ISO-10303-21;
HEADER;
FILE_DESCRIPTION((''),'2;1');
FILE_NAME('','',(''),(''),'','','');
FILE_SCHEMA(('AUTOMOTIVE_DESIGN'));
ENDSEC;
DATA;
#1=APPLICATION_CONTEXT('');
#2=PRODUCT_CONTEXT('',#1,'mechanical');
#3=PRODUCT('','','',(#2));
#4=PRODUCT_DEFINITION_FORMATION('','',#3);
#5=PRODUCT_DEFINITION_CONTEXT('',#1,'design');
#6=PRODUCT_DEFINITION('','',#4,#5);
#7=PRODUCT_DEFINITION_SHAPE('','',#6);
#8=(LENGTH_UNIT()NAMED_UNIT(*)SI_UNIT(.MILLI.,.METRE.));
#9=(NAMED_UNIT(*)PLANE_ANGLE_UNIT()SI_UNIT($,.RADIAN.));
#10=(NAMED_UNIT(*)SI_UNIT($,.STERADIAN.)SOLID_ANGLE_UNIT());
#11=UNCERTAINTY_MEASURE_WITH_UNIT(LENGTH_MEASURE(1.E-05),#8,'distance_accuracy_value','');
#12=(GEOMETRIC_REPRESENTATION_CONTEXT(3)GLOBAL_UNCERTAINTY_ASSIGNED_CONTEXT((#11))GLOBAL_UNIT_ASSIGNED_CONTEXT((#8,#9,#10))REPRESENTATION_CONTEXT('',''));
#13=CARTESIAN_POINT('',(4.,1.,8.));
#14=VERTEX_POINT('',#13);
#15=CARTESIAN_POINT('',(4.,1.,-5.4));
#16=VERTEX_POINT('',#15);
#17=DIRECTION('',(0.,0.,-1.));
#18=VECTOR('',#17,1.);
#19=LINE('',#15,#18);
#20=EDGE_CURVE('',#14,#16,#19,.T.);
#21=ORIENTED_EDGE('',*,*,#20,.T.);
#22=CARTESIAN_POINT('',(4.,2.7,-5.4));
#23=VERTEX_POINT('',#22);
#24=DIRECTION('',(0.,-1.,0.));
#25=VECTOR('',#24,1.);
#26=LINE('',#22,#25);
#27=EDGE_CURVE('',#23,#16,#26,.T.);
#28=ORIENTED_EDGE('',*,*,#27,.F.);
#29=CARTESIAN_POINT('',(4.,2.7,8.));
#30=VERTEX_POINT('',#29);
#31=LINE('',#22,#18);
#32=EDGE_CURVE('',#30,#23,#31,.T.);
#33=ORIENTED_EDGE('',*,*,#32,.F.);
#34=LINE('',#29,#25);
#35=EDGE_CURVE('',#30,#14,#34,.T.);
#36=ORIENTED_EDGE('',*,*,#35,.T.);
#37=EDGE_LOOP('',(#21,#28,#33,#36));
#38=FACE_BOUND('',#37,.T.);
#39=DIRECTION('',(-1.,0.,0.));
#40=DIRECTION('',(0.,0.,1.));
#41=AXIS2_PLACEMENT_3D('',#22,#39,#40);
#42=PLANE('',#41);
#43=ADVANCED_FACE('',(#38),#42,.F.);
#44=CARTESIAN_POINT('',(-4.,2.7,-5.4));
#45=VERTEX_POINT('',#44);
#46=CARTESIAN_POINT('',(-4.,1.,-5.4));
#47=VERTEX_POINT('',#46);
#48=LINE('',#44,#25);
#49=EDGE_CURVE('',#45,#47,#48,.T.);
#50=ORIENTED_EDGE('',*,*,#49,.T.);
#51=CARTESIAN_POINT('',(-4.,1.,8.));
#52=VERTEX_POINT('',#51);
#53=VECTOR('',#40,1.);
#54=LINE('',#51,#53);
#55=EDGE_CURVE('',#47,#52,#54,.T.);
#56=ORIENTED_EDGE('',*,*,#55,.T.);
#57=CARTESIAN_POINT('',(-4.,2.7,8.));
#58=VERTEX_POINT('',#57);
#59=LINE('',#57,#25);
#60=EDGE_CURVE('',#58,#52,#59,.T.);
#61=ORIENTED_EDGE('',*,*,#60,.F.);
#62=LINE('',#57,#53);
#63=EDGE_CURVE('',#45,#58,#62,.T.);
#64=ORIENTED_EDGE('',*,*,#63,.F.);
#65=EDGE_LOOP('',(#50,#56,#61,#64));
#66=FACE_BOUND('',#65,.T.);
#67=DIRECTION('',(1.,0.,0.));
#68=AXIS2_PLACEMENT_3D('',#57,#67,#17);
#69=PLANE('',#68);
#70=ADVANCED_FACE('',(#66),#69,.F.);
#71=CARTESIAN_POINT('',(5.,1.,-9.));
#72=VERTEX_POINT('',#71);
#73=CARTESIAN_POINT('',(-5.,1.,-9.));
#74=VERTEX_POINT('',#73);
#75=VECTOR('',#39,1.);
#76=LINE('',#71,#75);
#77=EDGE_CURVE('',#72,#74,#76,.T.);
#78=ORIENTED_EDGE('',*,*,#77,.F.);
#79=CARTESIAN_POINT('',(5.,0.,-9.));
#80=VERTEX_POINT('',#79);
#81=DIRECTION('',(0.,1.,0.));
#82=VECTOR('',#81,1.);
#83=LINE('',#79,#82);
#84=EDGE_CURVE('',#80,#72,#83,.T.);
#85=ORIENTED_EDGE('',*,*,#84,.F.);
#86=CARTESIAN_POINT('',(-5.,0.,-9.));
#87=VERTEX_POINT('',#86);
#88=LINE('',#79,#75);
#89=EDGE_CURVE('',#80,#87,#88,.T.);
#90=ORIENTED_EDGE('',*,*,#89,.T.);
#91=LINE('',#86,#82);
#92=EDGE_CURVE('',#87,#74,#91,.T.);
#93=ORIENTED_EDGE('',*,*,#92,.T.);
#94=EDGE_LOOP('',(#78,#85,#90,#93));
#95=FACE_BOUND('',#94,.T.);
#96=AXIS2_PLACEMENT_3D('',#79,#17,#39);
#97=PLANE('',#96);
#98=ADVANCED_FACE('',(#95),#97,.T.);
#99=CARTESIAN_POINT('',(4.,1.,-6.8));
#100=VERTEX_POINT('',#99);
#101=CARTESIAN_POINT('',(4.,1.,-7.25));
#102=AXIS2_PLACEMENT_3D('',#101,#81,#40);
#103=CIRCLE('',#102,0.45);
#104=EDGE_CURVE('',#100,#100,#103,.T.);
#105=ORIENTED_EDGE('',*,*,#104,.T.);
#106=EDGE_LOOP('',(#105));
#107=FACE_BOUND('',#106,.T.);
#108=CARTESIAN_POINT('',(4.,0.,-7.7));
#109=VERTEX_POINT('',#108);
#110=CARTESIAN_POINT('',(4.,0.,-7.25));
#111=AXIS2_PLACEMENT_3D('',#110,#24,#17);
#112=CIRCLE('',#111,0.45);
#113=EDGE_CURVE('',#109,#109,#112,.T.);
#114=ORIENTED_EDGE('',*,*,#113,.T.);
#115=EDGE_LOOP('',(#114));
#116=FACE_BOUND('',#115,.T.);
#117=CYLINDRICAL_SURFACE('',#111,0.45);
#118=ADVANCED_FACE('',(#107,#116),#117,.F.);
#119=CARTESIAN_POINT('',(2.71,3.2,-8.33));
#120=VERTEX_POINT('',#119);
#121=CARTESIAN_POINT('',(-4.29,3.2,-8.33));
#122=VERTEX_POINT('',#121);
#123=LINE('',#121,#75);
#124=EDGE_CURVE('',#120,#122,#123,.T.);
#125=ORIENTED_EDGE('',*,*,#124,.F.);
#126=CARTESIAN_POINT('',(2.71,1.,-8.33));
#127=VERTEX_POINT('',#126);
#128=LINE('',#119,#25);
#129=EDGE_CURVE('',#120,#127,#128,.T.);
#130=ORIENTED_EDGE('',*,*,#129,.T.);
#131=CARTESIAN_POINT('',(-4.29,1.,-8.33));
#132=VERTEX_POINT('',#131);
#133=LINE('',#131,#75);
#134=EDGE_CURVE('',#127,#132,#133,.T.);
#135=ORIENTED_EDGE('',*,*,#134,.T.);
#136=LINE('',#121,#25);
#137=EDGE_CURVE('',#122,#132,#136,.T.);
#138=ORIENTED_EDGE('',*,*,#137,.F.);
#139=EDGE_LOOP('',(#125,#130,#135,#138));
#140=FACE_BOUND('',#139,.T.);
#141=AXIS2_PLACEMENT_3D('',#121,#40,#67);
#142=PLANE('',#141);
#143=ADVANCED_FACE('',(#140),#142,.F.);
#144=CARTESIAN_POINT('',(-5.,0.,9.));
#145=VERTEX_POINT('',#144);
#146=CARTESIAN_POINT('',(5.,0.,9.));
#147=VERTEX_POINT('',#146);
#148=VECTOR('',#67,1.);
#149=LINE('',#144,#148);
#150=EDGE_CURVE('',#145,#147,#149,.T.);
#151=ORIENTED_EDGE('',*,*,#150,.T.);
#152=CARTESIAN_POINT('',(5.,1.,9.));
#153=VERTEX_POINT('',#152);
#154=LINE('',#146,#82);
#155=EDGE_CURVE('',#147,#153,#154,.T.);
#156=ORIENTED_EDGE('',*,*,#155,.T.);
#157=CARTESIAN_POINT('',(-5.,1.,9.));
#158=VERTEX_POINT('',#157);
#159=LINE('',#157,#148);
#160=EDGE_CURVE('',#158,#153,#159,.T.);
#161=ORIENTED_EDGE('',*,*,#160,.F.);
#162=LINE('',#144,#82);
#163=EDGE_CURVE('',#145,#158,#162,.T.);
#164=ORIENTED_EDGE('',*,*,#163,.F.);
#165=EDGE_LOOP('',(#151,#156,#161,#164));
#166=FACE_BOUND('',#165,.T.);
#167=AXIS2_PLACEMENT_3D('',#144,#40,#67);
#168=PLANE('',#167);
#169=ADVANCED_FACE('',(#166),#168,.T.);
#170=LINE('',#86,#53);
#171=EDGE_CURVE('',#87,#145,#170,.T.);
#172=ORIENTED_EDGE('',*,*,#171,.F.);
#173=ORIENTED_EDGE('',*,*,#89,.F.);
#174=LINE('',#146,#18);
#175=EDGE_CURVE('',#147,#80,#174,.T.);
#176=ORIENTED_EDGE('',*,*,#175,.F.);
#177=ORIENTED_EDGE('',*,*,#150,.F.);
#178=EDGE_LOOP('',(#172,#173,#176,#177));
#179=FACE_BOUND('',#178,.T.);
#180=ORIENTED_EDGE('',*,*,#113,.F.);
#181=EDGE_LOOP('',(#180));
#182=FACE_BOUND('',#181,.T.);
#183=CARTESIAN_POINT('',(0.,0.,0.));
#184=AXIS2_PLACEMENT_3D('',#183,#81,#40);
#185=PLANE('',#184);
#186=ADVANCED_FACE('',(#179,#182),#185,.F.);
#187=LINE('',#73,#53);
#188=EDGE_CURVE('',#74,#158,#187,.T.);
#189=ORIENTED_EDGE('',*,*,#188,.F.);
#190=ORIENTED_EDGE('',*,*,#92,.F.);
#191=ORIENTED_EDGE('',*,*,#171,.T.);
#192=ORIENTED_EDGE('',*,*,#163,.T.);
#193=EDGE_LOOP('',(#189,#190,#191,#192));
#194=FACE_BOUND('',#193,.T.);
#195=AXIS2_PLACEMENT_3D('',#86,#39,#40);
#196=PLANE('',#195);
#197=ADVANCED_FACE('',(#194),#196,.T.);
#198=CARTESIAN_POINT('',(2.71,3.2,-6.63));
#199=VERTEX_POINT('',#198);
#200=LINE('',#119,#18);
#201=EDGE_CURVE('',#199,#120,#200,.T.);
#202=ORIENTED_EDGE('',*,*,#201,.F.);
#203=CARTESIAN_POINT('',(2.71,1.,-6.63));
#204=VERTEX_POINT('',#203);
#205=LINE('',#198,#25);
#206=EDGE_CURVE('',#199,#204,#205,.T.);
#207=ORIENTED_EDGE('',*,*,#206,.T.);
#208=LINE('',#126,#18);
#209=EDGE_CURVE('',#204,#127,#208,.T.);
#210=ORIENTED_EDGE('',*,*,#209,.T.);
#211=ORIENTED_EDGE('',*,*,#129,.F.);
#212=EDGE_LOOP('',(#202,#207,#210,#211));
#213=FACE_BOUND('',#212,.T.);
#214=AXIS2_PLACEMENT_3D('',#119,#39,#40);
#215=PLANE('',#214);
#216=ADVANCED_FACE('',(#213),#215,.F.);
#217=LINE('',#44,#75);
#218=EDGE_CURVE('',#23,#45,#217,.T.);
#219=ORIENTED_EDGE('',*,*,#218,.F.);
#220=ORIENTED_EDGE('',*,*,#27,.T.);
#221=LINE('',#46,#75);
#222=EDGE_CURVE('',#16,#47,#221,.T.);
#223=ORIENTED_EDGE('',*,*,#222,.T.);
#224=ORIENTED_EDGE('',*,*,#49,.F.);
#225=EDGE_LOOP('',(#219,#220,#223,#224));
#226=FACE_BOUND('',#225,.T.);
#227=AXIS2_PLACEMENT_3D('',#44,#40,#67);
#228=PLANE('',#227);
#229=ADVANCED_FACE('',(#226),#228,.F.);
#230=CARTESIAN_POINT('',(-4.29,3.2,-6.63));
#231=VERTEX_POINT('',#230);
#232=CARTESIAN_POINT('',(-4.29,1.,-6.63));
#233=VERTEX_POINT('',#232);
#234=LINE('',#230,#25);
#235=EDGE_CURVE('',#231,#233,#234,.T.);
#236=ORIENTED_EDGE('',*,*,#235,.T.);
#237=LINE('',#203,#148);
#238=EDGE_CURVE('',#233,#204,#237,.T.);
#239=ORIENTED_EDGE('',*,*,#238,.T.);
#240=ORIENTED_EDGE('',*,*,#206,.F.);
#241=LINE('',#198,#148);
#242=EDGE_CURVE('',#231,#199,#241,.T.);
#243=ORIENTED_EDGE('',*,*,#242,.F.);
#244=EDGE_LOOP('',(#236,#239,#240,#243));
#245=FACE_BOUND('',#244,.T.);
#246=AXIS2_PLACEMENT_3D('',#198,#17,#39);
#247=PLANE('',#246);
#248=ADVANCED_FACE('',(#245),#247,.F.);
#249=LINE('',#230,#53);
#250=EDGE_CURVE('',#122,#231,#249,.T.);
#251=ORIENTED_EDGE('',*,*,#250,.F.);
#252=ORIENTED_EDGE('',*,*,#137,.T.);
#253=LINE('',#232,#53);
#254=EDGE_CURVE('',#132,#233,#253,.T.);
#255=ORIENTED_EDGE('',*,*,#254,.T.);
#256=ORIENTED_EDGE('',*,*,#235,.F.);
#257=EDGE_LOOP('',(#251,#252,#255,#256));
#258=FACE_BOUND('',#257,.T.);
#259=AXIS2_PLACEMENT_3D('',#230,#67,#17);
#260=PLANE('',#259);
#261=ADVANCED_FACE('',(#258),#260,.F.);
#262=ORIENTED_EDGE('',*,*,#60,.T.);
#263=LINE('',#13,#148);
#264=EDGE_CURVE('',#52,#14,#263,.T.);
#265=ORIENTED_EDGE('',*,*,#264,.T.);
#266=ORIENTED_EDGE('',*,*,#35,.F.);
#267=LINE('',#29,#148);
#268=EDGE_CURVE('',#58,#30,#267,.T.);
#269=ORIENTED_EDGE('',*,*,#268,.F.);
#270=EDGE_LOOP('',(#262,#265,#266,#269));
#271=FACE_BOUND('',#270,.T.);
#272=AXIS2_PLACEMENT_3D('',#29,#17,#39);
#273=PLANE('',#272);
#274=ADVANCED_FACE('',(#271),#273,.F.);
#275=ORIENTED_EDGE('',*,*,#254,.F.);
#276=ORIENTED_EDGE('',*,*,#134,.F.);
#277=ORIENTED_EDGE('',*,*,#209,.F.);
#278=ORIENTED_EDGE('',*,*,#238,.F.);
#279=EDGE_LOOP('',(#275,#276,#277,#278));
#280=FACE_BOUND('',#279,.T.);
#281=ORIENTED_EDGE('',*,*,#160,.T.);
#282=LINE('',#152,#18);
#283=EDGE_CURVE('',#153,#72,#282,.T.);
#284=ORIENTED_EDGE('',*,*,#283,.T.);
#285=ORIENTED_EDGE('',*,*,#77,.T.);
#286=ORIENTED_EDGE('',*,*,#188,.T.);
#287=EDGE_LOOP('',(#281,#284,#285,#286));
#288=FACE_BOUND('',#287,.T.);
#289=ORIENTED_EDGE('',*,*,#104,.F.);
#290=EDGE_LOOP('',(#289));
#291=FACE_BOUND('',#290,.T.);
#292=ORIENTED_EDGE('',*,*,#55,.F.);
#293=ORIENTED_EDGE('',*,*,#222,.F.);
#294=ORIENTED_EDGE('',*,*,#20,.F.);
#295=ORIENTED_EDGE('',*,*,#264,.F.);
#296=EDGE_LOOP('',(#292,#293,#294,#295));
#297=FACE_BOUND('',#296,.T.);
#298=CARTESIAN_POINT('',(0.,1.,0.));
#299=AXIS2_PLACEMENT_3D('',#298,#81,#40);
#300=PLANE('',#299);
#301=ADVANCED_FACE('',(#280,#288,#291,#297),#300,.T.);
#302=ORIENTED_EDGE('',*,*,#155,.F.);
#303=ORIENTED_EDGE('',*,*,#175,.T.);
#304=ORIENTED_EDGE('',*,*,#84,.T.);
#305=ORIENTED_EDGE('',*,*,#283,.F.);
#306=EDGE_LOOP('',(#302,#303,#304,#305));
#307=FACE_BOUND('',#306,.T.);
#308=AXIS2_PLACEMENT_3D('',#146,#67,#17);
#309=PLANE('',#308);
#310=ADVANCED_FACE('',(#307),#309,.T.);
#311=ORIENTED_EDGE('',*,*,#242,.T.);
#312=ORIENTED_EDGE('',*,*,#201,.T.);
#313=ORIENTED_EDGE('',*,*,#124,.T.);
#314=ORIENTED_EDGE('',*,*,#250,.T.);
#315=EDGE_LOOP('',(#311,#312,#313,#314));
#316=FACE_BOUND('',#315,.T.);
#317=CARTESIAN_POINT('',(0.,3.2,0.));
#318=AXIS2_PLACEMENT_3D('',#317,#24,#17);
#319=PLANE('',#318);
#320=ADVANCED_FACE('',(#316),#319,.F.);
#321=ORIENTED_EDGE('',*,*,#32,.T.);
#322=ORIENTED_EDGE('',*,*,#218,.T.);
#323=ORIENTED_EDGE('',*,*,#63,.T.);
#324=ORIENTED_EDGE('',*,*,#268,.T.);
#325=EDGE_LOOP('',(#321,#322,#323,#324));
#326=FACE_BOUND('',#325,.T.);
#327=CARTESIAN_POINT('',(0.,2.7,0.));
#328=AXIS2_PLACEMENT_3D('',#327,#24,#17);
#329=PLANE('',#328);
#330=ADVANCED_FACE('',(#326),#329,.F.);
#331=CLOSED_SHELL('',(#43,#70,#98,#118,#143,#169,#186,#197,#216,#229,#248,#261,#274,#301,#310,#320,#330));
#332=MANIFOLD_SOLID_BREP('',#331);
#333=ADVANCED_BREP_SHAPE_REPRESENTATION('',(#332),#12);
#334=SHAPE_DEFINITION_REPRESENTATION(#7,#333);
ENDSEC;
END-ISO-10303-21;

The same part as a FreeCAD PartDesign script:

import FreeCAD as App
import Part
import Sketcher
from FreeCAD import Vector


def add_polygon(sketch, points):
    """Adds a closed chain of lines whose ends are joined by coincident constraints."""
    first, n = sketch.GeometryCount, len(points)
    for a, b in zip(points, points[1:] + points[:1]):
        sketch.addGeometry(Part.LineSegment(App.Vector(*a, 0), App.Vector(*b, 0)), False)
    for i in range(n):
        sketch.addConstraint(Sketcher.Constraint("Coincident", first + i, 2, first + (i + 1) % n, 1))

doc = App.newDocument("Part")
body = doc.addObject("PartDesign::Body", "Body")

# Sketch on XZ plane
sketch1 = doc.addObject("Sketcher::SketchObject", "Sketch")
body.addObject(sketch1)
sketch1.AttachmentSupport = (doc.XZ_Plane, [""])
sketch1.MapMode = "FlatFace"
sketch1.AttachmentOffset = App.Placement(Vector(0, 0, -1), App.Rotation())
add_polygon(sketch1, [(-5, -9), (-5, 9), (5, 9), (5, -9)])  # lines 0-3
sketch1.addConstraint([
    Sketcher.Constraint("Vertical", 0),
    Sketcher.Constraint("Horizontal", 1),
    Sketcher.Constraint("Vertical", 2),
    Sketcher.Constraint("Horizontal", 3),
    Sketcher.Constraint("Symmetric", 0, 2, 2, 2, -1, 1),
    Sketcher.Constraint("DistanceX", 1, 1, 1, 2, 10.0),
    Sketcher.Constraint("DistanceY", 0, 1, 0, 2, 18.0),
])
pad1 = doc.addObject("PartDesign::Pad", "Pad")
body.addObject(pad1)
pad1.Profile = sketch1
pad1.Length = 1

# Sketch on XZ plane
sketch2 = doc.addObject("Sketcher::SketchObject", "Sketch001")
body.addObject(sketch2)
sketch2.AttachmentSupport = (doc.XZ_Plane, [""])
sketch2.MapMode = "FlatFace"
sketch2.AttachmentOffset = App.Placement(Vector(0, 0, -1), App.Rotation())
add_polygon(sketch2, [(4, 8), (4, -5.4), (-4, -5.4), (-4, 8)])  # lines 0-3
sketch2.addConstraint([
    Sketcher.Constraint("Vertical", 0),
    Sketcher.Constraint("Horizontal", 1),
    Sketcher.Constraint("Vertical", 2),
    Sketcher.Constraint("Horizontal", 3),
    Sketcher.Constraint("DistanceX", 1, 2, 1, 1, 8.0),
    Sketcher.Constraint("DistanceY", 0, 2, 0, 1, 13.4),
    Sketcher.Constraint("DistanceX", -1, 1, 0, 2, 4.0),
    Sketcher.Constraint("DistanceY", -1, 1, 2, 2, 8.0),
])
pad2 = doc.addObject("PartDesign::Pad", "Pad001")
body.addObject(pad2)
pad2.Profile = sketch2
pad2.Length = 1.7
pad2.Reversed = True

# Sketch on XZ plane
sketch3 = doc.addObject("Sketcher::SketchObject", "Sketch002")
body.addObject(sketch3)
sketch3.AttachmentSupport = (doc.XZ_Plane, [""])
sketch3.MapMode = "FlatFace"
sketch3.AttachmentOffset = App.Placement(Vector(0, 0, -1), App.Rotation())
add_polygon(sketch3, [(2.71, -6.63), (2.71, -8.33), (-4.29, -8.33), (-4.29, -6.63)])  # lines 0-3
sketch3.addConstraint([
    Sketcher.Constraint("Vertical", 0),
    Sketcher.Constraint("Horizontal", 1),
    Sketcher.Constraint("Vertical", 2),
    Sketcher.Constraint("Horizontal", 3),
    Sketcher.Constraint("DistanceX", 1, 2, 1, 1, 7.0),
    Sketcher.Constraint("DistanceY", 0, 2, 0, 1, 1.7),
    Sketcher.Constraint("DistanceX", -1, 1, 0, 2, 2.71),
    Sketcher.Constraint("DistanceY", 0, 2, -1, 1, 8.33),
])
pad3 = doc.addObject("PartDesign::Pad", "Pad002")
body.addObject(pad3)
pad3.Profile = sketch3
pad3.Length = 2.2
pad3.Reversed = True

# Sketch on XZ plane
sketch4 = doc.addObject("Sketcher::SketchObject", "Sketch003")
body.addObject(sketch4)
sketch4.AttachmentSupport = (doc.XZ_Plane, [""])
sketch4.MapMode = "FlatFace"
sketch4.addGeometry(Part.Circle(Vector(4, -7.25, 0), Vector(0, 0, 1), 0.45), False)
sketch4.addConstraint([
    Sketcher.Constraint("Diameter", 0, 0.9),
    Sketcher.Constraint("DistanceX", -1, 1, 0, 3, 4.0),
    Sketcher.Constraint("DistanceY", 0, 3, -1, 1, 7.25),
])
doc.recompute()
hole = doc.addObject("PartDesign::Hole", "Hole")
body.addObject(hole)
hole.Profile = sketch4
hole.ThreadType = "None"
hole.Diameter = 0.9
hole.DepthType = "Dimension"
hole.Depth = 3.2
hole.DrillPoint = "Flat"

doc.recompute()
